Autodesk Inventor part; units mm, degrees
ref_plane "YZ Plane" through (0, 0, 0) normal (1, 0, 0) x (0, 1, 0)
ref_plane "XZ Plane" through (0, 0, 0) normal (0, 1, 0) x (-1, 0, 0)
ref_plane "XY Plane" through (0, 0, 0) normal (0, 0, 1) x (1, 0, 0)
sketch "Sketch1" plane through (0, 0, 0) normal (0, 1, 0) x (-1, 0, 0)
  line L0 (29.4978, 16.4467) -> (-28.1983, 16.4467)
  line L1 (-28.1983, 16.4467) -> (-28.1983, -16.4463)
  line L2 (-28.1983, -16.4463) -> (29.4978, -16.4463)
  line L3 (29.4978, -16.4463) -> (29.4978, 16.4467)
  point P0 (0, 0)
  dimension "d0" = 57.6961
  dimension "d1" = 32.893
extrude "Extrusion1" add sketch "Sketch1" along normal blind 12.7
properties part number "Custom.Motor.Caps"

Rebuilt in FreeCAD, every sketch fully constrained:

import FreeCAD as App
import Part
import Sketcher
Q = App.Units.Quantity


def add_polygon(sketch, points):
    """Adds a closed chain of lines whose ends are joined by coincident constraints."""
    first, n = sketch.GeometryCount, len(points)
    for a, b in zip(points, points[1:] + points[:1]):
        sketch.addGeometry(Part.LineSegment(App.Vector(*a, 0), App.Vector(*b, 0)), False)
    for i in range(n):
        sketch.addConstraint(Sketcher.Constraint("Coincident", first + i, 2, first + (i + 1) % n, 1))

doc = App.newDocument("Part")
body = doc.addObject("PartDesign::Body", "Body")

# Sketch on XZ plane
sketch1 = body.newObject("Sketcher::SketchObject", "Sketch")
sketch1.AttachmentSupport = (doc.getObject("XZ_Plane"), [""])
sketch1.MapMode = "FlatFace"
add_polygon(sketch1, [(-29.4978, -16.4463), (-29.4978, 16.4467), (28.1983, 16.4467), (28.1983, -16.4463)])  # lines 0-3
sketch1.addConstraint(Sketcher.Constraint("Vertical", 0))
sketch1.addConstraint(Sketcher.Constraint("Horizontal", 1))
sketch1.addConstraint(Sketcher.Constraint("Vertical", 2))
sketch1.addConstraint(Sketcher.Constraint("Horizontal", 3))
sketch1.addConstraint(Sketcher.Constraint("DistanceY", 0, 1, 0, 2, Q("1.295 in")))
sketch1.addConstraint(Sketcher.Constraint("DistanceX", 1, 1, 1, 2, Q("2.2715 in")))
sketch1.addConstraint(Sketcher.Constraint("DistanceY", -1, 1, 0, 2, Q("0.6475 in")))
sketch1.addConstraint(Sketcher.Constraint("DistanceX", 0, 2, -1, 1, 29.4978))
pad1 = body.newObject("PartDesign::Pad", "Pad")
pad1.Profile = sketch1
pad1.Length = Q("0.5 in")
pad1.Reversed = True

doc.recompute()
